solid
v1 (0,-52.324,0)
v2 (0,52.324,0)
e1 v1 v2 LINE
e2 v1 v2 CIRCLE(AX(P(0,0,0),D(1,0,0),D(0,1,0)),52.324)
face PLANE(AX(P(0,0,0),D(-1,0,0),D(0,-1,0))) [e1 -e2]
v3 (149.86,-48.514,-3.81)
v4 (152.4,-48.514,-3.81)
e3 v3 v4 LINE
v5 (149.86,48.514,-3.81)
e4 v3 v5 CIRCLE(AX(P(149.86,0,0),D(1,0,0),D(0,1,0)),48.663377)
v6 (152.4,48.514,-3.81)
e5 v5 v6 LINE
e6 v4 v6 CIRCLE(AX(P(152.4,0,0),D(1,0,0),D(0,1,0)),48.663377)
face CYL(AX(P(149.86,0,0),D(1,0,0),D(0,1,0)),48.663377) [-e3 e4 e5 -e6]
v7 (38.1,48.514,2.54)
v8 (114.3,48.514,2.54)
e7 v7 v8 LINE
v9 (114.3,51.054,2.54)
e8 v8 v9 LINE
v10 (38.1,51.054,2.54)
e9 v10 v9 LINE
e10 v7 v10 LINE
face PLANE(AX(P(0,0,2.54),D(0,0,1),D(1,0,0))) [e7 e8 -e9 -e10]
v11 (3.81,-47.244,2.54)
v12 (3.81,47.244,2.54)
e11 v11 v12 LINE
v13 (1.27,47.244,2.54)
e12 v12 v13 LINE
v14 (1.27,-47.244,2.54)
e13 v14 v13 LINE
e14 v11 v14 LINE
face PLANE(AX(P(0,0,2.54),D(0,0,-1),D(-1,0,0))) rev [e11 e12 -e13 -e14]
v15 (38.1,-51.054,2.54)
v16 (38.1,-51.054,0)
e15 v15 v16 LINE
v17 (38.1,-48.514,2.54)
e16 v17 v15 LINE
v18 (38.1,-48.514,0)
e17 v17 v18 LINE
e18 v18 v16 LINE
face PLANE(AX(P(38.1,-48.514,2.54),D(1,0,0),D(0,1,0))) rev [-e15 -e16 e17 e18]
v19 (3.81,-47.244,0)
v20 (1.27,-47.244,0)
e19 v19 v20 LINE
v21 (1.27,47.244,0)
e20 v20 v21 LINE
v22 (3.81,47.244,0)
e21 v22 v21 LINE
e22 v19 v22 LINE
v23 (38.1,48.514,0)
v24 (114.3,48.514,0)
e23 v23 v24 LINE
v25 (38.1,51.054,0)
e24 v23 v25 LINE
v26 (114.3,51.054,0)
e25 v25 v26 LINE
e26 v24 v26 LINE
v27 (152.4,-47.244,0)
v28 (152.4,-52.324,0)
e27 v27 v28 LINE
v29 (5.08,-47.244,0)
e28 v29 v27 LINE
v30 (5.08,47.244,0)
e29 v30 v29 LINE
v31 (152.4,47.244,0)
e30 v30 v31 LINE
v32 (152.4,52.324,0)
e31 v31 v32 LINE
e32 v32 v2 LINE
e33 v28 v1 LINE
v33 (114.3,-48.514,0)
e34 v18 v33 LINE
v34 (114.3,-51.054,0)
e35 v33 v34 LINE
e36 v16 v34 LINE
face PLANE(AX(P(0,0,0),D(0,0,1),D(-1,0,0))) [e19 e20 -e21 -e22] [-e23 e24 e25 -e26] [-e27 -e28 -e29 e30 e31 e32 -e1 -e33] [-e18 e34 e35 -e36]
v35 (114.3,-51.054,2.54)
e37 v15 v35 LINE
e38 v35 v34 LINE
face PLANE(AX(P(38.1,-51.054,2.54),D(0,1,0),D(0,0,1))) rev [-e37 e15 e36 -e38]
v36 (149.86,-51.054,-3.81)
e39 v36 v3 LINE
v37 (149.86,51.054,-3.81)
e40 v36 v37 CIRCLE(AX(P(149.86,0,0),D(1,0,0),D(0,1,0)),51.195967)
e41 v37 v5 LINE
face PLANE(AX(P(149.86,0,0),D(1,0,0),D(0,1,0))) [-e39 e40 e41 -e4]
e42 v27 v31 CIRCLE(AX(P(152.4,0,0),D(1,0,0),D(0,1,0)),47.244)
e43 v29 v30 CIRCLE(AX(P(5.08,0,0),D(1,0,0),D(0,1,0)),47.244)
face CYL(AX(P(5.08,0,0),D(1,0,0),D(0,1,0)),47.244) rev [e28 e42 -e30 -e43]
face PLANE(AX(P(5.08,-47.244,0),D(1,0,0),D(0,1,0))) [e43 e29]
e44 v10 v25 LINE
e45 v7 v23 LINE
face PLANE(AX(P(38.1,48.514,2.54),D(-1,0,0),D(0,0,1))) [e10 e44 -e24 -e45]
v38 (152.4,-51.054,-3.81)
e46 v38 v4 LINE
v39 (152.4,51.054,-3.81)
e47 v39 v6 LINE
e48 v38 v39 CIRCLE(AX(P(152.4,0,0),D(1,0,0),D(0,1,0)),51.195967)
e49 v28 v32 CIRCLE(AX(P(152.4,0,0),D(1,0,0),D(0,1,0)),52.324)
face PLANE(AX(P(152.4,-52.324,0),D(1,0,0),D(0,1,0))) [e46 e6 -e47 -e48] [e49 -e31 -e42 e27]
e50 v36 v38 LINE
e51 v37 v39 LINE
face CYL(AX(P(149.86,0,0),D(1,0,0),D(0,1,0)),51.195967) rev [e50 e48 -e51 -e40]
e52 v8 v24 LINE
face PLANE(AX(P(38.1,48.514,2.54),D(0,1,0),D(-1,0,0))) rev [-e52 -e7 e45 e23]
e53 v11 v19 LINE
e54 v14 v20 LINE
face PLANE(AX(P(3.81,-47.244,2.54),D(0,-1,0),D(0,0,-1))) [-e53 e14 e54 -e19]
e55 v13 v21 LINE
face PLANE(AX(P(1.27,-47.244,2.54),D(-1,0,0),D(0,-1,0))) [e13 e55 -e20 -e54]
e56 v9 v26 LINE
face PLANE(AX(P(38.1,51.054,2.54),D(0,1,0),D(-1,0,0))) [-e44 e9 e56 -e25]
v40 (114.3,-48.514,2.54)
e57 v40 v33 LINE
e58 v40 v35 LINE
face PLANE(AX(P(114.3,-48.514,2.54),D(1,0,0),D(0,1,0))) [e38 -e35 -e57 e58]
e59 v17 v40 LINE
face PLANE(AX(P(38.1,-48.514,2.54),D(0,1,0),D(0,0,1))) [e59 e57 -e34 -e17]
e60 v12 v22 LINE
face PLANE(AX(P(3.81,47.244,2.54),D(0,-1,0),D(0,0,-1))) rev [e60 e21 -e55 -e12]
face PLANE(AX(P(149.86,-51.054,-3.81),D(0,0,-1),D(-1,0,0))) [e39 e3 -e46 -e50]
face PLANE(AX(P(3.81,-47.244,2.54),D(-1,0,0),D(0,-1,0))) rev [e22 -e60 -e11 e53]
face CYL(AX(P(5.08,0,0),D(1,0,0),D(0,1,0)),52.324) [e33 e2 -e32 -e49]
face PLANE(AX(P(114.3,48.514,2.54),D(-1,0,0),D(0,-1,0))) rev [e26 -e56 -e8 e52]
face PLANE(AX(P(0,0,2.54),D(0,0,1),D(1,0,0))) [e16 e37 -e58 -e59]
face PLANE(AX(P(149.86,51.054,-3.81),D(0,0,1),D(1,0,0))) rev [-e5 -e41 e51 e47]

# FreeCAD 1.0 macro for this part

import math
import FreeCAD as App
import Part
import Sketcher
from FreeCAD import Vector
Q = App.Units.Quantity

doc = App.newDocument("Part")
body = doc.addObject("PartDesign::Body", "Body")

# Sketch on XY plane
sketch1 = doc.addObject("Sketcher::SketchObject", "Sketch")
body.addObject(sketch1)
sketch1.AttachmentSupport = (doc.XY_Plane, [""])
sketch1.MapMode = "FlatFace"
sketch1.addGeometry([
    Part.LineSegment(Vector(0, 52.324, 0), Vector(0, 0, 0)),  # 0
    Part.LineSegment(Vector(0, 0, 0), Vector(5.08, 0, 0)),  # 1
    Part.LineSegment(Vector(5.08, 0, 0), Vector(5.08, 47.244, 0)),  # 2
    Part.LineSegment(Vector(5.08, 47.244, 0), Vector(152.4, 47.244, 0)),  # 3
    Part.LineSegment(Vector(152.4, 47.244, 0), Vector(152.4, 52.324, 0)),  # 4
    Part.LineSegment(Vector(152.4, 52.324, 0), Vector(0, 52.324, 0)),  # 5
], False)
sketch1.addConstraint([
    Sketcher.Constraint("Coincident", 0, 2, 1, 1),
    Sketcher.Constraint("Coincident", 1, 2, 2, 1),
    Sketcher.Constraint("Coincident", 2, 2, 3, 1),
    Sketcher.Constraint("Coincident", 3, 2, 4, 1),
    Sketcher.Constraint("Coincident", 4, 2, 5, 1),
    Sketcher.Constraint("Coincident", 5, 2, 0, 1),
    Sketcher.Constraint("Vertical", 0),
    Sketcher.Constraint("Horizontal", 1),
    Sketcher.Constraint("Vertical", 2),
    Sketcher.Constraint("Horizontal", 3),
    Sketcher.Constraint("Vertical", 4),
    Sketcher.Constraint("Horizontal", 5),
    Sketcher.Constraint("Coincident", 0, 2, -1, 1),
    Sketcher.Constraint("Equal", 1, 4),
    Sketcher.Constraint("DistanceX", 5, 2, 5, 1, Q("6 in")),
    Sketcher.Constraint("DistanceX", 1, 1, 1, 2, Q("0.2 in")),
    Sketcher.Constraint("DistanceY", 0, 2, 0, 1, Q("2.06 in")),
])
revolution = doc.addObject("PartDesign::Revolution", "Revolution")
body.addObject(revolution)
revolution.Profile = sketch1
revolution.ReferenceAxis = (sketch1, ["H_Axis"])
revolution.Angle = 180
revolution.Reversed = True

# Sketch on XY plane
sketch2 = doc.addObject("Sketcher::SketchObject", "Sketch001")
body.addObject(sketch2)
sketch2.AttachmentSupport = (doc.XY_Plane, [""])
sketch2.MapMode = "FlatFace"
sketch2.addGeometry([
    Part.LineSegment(Vector(1.27, 47.244, 0), Vector(1.27, -47.244, 0)),  # 0
    Part.LineSegment(Vector(1.27, -47.244, 0), Vector(3.81, -47.244, 0)),  # 1
    Part.LineSegment(Vector(3.81, -47.244, 0), Vector(3.81, 47.244, 0)),  # 2
    Part.LineSegment(Vector(3.81, 47.244, 0), Vector(1.27, 47.244, 0)),  # 3
    Part.LineSegment(Vector(38.1, 51.054, 0), Vector(38.1, 48.514, 0)),  # 4
    Part.LineSegment(Vector(38.1, 48.514, 0), Vector(114.3, 48.514, 0)),  # 5
    Part.LineSegment(Vector(114.3, 48.514, 0), Vector(114.3, 51.054, 0)),  # 6
    Part.LineSegment(Vector(114.3, 51.054, 0), Vector(38.1, 51.054, 0)),  # 7
    Part.LineSegment(Vector(38.1, -48.514, 0), Vector(38.1, -51.054, 0)),  # 8
    Part.LineSegment(Vector(38.1, -51.054, 0), Vector(114.3, -51.054, 0)),  # 9
    Part.LineSegment(Vector(114.3, -51.054, 0), Vector(114.3, -48.514, 0)),  # 10
    Part.LineSegment(Vector(114.3, -48.514, 0), Vector(38.1, -48.514, 0)),  # 11
], False)
sketch2.addConstraint([
    Sketcher.Constraint("Coincident", 0, 2, 1, 1),
    Sketcher.Constraint("Coincident", 1, 2, 2, 1),
    Sketcher.Constraint("Coincident", 2, 2, 3, 1),
    Sketcher.Constraint("Coincident", 3, 2, 0, 1),
    Sketcher.Constraint("Coincident", 4, 2, 5, 1),
    Sketcher.Constraint("Coincident", 5, 2, 6, 1),
    Sketcher.Constraint("Coincident", 6, 2, 7, 1),
    Sketcher.Constraint("Coincident", 7, 2, 4, 1),
    Sketcher.Constraint("Coincident", 8, 2, 9, 1),
    Sketcher.Constraint("Coincident", 9, 2, 10, 1),
    Sketcher.Constraint("Coincident", 10, 2, 11, 1),
    Sketcher.Constraint("Coincident", 11, 2, 8, 1),
    Sketcher.Constraint("Vertical", 0),
    Sketcher.Constraint("Horizontal", 1),
    Sketcher.Constraint("Vertical", 2),
    Sketcher.Constraint("Horizontal", 3),
    Sketcher.Constraint("Vertical", 4),
    Sketcher.Constraint("Horizontal", 5),
    Sketcher.Constraint("Vertical", 6),
    Sketcher.Constraint("Horizontal", 7),
    Sketcher.Constraint("Vertical", 8),
    Sketcher.Constraint("Horizontal", 9),
    Sketcher.Constraint("Vertical", 10),
    Sketcher.Constraint("Horizontal", 11),
    Sketcher.Constraint("Symmetric", 7, 2, 8, 2, -1),
    Sketcher.Constraint("Symmetric", 5, 2, 10, 2, -1),
    Sketcher.Constraint("Equal", 3, 4),
    Sketcher.Constraint("DistanceX", 5, 1, 5, 2, Q("3 in")),
    Sketcher.Constraint("DistanceX", 1, 1, 1, 2, Q("0.1 in")),
    Sketcher.Constraint("DistanceY", 0, 2, 0, 1, Q("3.72 in")),
    Sketcher.Constraint("DistanceX", -1, 1, 4, 2, Q("1.5 in")),
    Sketcher.Constraint("DistanceX", -1, 1, 0, 2, Q("0.05 in")),
    Sketcher.Constraint("DistanceY", 0, 2, -1, 1, Q("1.86 in")),
    Sketcher.Constraint("DistanceY", -1, 1, 4, 2, Q("1.91 in")),
])
pad1 = doc.addObject("PartDesign::Pad", "Pad")
body.addObject(pad1)
pad1.Profile = sketch2
pad1.Length = Q("0.1 in")

# Sketch on YZ plane
sketch3 = doc.addObject("Sketcher::SketchObject", "Sketch002")
body.addObject(sketch3)
sketch3.AttachmentSupport = (doc.YZ_Plane, [""])
sketch3.MapMode = "FlatFace"
sketch3.AttachmentOffset = App.Placement(Vector(0, 0, 6 * 25.4), App.Rotation())
sketch3.addGeometry([
    Part.LineSegment(Vector(51.054, -3.81, 0), Vector(48.514, -3.81, 0)),
    Part.ArcOfCircle(Part.Circle(Vector(0, 0, 0), Vector(0, 0, 1), 48.663377), math.radians(-175.509548), math.radians(-4.490452)),
    Part.LineSegment(Vector(-48.514, -3.81, 0), Vector(-51.054, -3.81, 0)),
    Part.ArcOfCircle(Part.Circle(Vector(0, 0, 0), Vector(0, 0, 1), 51.195967), math.radians(-175.732107), math.radians(-4.267893)),
], False)
sketch3.addConstraint([
    Sketcher.Constraint("Coincident", 0, 2, 1, 2),
    Sketcher.Constraint("Coincident", 1, 1, 2, 1),
    Sketcher.Constraint("Coincident", 2, 2, 3, 1),
    Sketcher.Constraint("Coincident", 3, 2, 0, 1),
    Sketcher.Constraint("Horizontal", 0),
    Sketcher.Constraint("Horizontal", 2),
    Sketcher.Constraint("Coincident", 1, 3, -1, 1),
    Sketcher.Constraint("Coincident", 3, 3, -1, 1),
    Sketcher.Constraint("Horizontal", 0, 2, 1, 1),
    Sketcher.Constraint("DistanceX", 0, 2, 0, 1, Q("0.1 in")),
    Sketcher.Constraint("DistanceX", -1, 1, 0, 2, Q("1.91 in")),
    Sketcher.Constraint("DistanceY", 0, 2, -1, 1, Q("0.15 in")),
])
pocket1 = doc.addObject("PartDesign::Pocket", "Pocket")
body.addObject(pocket1)
pocket1.Profile = sketch3
pocket1.Length = Q("0.1 in")

doc.recompute()
